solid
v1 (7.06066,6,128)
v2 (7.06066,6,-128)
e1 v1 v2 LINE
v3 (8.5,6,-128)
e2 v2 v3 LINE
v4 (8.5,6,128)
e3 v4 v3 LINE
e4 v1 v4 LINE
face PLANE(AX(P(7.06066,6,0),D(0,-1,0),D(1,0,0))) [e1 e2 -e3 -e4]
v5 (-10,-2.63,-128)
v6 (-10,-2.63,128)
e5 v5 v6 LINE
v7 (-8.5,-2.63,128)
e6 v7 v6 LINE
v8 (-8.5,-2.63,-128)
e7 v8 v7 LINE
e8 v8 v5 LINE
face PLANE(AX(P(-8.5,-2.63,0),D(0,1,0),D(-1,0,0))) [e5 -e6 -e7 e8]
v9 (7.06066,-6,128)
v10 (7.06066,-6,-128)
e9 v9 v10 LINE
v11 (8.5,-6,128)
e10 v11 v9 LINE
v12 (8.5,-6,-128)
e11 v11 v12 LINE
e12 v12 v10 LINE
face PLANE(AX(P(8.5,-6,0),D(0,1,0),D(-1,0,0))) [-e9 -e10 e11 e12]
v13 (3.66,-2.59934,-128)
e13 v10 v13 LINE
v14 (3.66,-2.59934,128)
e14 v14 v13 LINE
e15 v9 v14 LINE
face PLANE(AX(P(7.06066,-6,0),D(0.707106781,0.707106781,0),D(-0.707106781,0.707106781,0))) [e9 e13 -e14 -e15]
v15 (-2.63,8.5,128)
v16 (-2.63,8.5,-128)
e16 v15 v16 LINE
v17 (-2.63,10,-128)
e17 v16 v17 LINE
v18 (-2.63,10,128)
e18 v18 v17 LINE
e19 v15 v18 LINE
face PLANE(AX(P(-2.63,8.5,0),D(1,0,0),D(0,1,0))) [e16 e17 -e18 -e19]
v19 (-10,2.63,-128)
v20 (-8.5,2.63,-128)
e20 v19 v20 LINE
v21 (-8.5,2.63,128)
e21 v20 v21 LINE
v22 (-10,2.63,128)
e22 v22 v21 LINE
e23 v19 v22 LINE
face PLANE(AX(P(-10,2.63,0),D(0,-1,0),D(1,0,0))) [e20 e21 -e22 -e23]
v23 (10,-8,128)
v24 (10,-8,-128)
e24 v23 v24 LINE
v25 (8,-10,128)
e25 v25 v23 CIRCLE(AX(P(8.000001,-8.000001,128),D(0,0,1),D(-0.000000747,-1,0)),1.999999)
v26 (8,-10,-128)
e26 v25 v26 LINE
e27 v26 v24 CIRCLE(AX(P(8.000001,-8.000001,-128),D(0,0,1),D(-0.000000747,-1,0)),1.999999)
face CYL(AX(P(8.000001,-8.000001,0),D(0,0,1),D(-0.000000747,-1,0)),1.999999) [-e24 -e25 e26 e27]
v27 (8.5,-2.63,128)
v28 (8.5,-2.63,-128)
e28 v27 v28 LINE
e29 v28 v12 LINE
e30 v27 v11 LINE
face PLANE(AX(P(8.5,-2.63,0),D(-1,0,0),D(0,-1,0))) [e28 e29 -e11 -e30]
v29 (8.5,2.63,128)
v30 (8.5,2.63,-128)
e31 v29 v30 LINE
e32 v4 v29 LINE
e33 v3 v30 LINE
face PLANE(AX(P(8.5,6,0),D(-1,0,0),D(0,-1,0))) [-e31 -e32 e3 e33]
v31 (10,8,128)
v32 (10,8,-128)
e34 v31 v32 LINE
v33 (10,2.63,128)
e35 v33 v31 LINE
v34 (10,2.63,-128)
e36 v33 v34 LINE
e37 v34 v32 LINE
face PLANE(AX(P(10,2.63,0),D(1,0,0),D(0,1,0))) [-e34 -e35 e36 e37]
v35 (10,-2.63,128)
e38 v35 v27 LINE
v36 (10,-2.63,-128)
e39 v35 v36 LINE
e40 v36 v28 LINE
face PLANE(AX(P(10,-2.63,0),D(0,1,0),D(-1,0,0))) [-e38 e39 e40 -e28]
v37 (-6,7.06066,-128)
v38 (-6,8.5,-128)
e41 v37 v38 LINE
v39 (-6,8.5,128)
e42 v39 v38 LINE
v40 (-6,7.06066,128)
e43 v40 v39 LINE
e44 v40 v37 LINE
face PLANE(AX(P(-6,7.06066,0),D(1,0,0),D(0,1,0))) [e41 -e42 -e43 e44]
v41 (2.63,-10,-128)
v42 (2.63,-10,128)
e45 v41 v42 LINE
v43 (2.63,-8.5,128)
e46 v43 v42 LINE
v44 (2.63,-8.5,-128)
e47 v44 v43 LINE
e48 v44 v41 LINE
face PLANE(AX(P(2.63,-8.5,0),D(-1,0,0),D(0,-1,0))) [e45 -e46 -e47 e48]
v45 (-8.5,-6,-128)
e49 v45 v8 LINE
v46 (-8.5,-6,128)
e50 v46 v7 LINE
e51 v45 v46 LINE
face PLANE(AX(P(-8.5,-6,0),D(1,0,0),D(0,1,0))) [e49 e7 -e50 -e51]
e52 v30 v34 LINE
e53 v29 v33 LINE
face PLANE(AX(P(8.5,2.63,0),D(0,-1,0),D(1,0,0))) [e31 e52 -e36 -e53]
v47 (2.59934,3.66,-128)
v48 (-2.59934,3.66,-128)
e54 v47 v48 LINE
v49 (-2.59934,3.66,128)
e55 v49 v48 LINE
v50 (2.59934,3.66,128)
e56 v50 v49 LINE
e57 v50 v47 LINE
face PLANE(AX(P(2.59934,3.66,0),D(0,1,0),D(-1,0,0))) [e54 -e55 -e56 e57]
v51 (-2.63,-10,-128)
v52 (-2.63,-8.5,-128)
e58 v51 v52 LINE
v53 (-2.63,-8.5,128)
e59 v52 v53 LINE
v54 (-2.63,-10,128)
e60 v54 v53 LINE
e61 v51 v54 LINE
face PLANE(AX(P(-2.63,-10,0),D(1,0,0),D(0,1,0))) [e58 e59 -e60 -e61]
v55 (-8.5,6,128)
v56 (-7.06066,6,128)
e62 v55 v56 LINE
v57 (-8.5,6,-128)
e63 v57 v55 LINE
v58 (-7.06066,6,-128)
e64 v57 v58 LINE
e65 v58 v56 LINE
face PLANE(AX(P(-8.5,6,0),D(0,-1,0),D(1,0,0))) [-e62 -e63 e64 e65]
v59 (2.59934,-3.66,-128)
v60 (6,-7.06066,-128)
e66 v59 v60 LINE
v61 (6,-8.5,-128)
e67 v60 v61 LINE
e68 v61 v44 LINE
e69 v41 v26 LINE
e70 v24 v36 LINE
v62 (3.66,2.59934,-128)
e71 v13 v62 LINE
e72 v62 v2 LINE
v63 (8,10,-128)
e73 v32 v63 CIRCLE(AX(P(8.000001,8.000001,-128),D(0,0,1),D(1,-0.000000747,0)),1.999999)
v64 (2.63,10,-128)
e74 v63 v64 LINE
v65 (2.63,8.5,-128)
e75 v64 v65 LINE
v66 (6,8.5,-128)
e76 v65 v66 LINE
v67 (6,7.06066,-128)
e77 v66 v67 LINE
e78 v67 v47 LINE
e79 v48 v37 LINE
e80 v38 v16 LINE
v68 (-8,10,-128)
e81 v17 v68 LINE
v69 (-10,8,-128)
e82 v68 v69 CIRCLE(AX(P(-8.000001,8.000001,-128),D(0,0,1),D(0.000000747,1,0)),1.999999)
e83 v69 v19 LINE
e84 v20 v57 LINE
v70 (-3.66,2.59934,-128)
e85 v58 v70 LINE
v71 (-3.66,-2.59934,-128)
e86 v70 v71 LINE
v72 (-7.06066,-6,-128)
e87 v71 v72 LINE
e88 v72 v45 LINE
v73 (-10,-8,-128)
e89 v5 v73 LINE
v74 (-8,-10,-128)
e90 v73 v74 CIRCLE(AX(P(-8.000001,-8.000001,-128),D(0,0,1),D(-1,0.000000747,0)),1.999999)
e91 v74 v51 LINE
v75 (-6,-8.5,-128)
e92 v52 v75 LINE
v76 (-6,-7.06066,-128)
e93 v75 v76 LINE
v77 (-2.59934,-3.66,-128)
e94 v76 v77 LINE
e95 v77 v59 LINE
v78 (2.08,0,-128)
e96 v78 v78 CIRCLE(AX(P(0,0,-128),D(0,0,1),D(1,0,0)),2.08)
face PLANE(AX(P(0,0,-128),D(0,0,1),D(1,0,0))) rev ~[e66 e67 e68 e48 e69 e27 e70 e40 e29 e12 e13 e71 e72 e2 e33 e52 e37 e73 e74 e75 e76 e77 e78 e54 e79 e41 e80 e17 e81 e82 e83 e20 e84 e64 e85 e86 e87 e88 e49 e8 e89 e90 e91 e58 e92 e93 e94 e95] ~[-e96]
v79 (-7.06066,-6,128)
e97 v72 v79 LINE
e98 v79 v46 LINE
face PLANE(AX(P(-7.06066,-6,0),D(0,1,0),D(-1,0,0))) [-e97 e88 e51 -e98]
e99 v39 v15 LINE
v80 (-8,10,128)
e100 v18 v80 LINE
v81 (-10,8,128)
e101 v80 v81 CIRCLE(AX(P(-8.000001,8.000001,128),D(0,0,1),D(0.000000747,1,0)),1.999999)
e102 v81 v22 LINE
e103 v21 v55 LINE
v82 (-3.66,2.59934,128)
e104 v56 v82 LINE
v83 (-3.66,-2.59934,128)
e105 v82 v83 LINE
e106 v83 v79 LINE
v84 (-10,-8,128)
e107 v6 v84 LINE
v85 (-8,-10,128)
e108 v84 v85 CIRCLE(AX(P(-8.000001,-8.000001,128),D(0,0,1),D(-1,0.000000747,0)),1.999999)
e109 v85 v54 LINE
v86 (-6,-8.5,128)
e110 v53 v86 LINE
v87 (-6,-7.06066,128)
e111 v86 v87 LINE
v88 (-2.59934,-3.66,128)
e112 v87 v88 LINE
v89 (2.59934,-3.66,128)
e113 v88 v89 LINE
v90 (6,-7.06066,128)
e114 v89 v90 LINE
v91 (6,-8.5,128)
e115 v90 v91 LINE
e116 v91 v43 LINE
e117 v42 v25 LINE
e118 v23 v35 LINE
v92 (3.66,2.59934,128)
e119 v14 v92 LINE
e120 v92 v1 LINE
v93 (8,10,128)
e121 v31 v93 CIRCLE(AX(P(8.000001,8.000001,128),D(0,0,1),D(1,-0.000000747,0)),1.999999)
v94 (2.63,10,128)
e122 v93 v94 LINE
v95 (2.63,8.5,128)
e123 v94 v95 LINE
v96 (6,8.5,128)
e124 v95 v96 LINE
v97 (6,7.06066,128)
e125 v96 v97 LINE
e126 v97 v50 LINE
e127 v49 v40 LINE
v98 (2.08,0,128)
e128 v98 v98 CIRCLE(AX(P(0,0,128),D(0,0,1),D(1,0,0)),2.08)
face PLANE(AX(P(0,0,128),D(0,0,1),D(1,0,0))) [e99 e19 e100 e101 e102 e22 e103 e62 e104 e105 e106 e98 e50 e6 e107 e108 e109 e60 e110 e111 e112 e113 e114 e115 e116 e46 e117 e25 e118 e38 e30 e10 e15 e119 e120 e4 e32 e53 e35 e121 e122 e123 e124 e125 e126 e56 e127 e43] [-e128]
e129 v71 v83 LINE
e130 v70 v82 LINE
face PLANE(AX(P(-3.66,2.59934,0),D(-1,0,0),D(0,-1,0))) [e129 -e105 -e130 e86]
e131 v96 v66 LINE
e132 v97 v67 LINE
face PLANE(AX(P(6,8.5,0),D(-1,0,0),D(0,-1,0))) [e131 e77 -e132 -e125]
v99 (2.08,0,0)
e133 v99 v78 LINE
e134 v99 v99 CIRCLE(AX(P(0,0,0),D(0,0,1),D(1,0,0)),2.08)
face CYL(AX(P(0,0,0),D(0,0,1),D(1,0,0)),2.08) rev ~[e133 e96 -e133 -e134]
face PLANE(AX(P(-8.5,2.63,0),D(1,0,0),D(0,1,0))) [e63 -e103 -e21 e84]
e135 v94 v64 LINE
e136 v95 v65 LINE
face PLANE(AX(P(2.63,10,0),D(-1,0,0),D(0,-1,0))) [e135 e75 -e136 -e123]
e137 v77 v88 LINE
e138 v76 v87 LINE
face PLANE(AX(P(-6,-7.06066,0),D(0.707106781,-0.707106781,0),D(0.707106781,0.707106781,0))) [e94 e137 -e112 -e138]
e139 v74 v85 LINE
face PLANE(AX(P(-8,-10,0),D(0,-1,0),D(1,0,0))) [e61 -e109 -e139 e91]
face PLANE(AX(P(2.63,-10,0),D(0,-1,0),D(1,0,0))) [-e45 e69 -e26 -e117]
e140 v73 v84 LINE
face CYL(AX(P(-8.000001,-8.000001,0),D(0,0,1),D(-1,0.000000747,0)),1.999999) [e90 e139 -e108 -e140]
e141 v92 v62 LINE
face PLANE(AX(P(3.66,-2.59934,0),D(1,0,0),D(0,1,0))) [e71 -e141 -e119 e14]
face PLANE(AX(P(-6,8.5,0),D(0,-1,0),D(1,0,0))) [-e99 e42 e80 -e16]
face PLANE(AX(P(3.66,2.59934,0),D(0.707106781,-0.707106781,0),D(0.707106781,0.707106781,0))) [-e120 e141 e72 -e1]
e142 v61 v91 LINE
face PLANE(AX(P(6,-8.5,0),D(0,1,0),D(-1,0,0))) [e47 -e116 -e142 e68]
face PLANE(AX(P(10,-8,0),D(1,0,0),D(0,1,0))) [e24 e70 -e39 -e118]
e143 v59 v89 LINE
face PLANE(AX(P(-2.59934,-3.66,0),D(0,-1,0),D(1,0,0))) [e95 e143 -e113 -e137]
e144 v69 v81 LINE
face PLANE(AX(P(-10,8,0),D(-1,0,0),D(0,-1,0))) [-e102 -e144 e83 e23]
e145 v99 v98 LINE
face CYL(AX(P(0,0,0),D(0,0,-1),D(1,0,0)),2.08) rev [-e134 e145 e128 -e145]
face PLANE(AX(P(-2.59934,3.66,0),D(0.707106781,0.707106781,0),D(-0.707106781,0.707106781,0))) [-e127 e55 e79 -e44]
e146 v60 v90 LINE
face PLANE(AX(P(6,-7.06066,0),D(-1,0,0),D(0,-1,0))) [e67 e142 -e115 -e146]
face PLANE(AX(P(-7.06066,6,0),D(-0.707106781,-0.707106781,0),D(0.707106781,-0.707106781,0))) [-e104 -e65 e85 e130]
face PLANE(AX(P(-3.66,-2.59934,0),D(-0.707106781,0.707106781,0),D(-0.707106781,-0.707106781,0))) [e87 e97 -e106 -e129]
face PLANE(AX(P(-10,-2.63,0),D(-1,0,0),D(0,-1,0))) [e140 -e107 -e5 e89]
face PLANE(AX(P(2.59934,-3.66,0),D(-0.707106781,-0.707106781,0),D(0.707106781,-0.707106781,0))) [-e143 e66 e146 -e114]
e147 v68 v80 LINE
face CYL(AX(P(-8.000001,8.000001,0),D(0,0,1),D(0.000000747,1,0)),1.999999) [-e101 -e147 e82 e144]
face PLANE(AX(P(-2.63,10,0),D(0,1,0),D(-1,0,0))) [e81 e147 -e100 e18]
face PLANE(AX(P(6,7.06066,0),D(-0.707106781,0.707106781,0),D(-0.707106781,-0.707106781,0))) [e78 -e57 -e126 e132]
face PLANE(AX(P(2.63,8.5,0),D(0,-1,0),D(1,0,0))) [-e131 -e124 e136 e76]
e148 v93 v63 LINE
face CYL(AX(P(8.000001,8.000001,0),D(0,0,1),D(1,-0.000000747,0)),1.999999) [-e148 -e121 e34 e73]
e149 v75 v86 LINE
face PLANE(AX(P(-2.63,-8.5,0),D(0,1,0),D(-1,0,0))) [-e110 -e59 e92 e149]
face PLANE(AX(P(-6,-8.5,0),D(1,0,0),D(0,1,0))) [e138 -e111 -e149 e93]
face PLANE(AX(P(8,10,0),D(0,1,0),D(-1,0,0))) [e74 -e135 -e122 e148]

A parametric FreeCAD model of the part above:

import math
import FreeCAD as App
import Part
import Sketcher
Q = App.Units.Quantity

doc = App.newDocument("Part")
body = doc.addObject("PartDesign::Body", "Body")

sketch1 = doc.addObject("Sketcher::SketchObject", "Sketch")
body.addObject(sketch1)
sketch1.AttachmentSupport = (doc.XY_Plane, [""])
sketch1.MapMode = "FlatFace"
sketch1.addGeometry([
    Part.LineSegment(App.Vector(-2.6, 10, 0), App.Vector(-8, 10, 0)),
    Part.ArcOfCircle(Part.Circle(App.Vector(-8, 8, 0), App.Vector(0, 0, 1), 2), math.radians(90), math.radians(180)),
    Part.LineSegment(App.Vector(-10, 8, 0), App.Vector(-10, 2.6, 0)),
    Part.LineSegment(App.Vector(-10, 2.6, 0), App.Vector(-8.5, 2.6, 0)),
    Part.LineSegment(App.Vector(-8.5, 2.6, 0), App.Vector(-8.5, 6, 0)),
    Part.LineSegment(App.Vector(-8.5, 6, 0), App.Vector(-7.1, 6, 0)),
    Part.LineSegment(App.Vector(-7.1, 6, 0), App.Vector(-3.7, 2.6, 0)),
    Part.LineSegment(App.Vector(-3.7, 2.6, 0), App.Vector(-3.7, -2.6, 0)),
    Part.LineSegment(App.Vector(-3.7, -2.6, 0), App.Vector(-7.1, -6, 0)),
    Part.LineSegment(App.Vector(-7.1, -6, 0), App.Vector(-8.5, -6, 0)),
    Part.LineSegment(App.Vector(-8.5, -6, 0), App.Vector(-8.5, -2.6, 0)),
    Part.LineSegment(App.Vector(-8.5, -2.6, 0), App.Vector(-10, -2.6, 0)),
    Part.LineSegment(App.Vector(-10, -2.6, 0), App.Vector(-10, -8, 0)),
    Part.ArcOfCircle(Part.Circle(App.Vector(-8, -8, 0), App.Vector(0, 0, 1), 2), math.radians(180), math.radians(270)),
    Part.LineSegment(App.Vector(-8, -10, 0), App.Vector(-2.6, -10, 0)),
    Part.LineSegment(App.Vector(-2.6, -10, 0), App.Vector(-2.6, -8.5, 0)),
    Part.LineSegment(App.Vector(-2.6, -8.5, 0), App.Vector(-6, -8.5, 0)),
    Part.LineSegment(App.Vector(-6, -8.5, 0), App.Vector(-6, -7.1, 0)),
    Part.LineSegment(App.Vector(-6, -7.1, 0), App.Vector(-2.6, -3.7, 0)),
    Part.LineSegment(App.Vector(-2.6, -3.7, 0), App.Vector(2.6, -3.7, 0)),
    Part.LineSegment(App.Vector(2.6, -3.7, 0), App.Vector(6, -7.1, 0)),
    Part.LineSegment(App.Vector(6, -7.1, 0), App.Vector(6, -8.5, 0)),
    Part.LineSegment(App.Vector(6, -8.5, 0), App.Vector(2.6, -8.5, 0)),
    Part.LineSegment(App.Vector(2.6, -8.5, 0), App.Vector(2.6, -10, 0)),
    Part.LineSegment(App.Vector(2.6, -10, 0), App.Vector(8, -10, 0)),
    Part.ArcOfCircle(Part.Circle(App.Vector(8, -8, 0), App.Vector(0, 0, 1), 2), math.radians(-90), math.radians(0)),
    Part.LineSegment(App.Vector(10, -8, 0), App.Vector(10, -2.6, 0)),
    Part.LineSegment(App.Vector(10, -2.6, 0), App.Vector(8.5, -2.6, 0)),
    Part.LineSegment(App.Vector(8.5, -2.6, 0), App.Vector(8.5, -6, 0)),
    Part.LineSegment(App.Vector(8.5, -6, 0), App.Vector(7.1, -6, 0)),
    Part.LineSegment(App.Vector(7.1, -6, 0), App.Vector(3.7, -2.6, 0)),
    Part.LineSegment(App.Vector(3.7, -2.6, 0), App.Vector(3.7, 2.6, 0)),
    Part.LineSegment(App.Vector(3.7, 2.6, 0), App.Vector(7.1, 6, 0)),
    Part.LineSegment(App.Vector(7.1, 6, 0), App.Vector(8.5, 6, 0)),
    Part.LineSegment(App.Vector(8.5, 6, 0), App.Vector(8.5, 2.6, 0)),
    Part.LineSegment(App.Vector(8.5, 2.6, 0), App.Vector(10, 2.6, 0)),
    Part.LineSegment(App.Vector(10, 2.6, 0), App.Vector(10, 8, 0)),
    Part.ArcOfCircle(Part.Circle(App.Vector(8, 8, 0), App.Vector(0, 0, 1), 2), math.radians(0), math.radians(90)),
    Part.LineSegment(App.Vector(8, 10, 0), App.Vector(2.6, 10, 0)),
    Part.LineSegment(App.Vector(2.6, 10, 0), App.Vector(2.6, 8.5, 0)),
    Part.LineSegment(App.Vector(2.6, 8.5, 0), App.Vector(6, 8.5, 0)),
    Part.LineSegment(App.Vector(6, 8.5, 0), App.Vector(6, 7.1, 0)),
    Part.LineSegment(App.Vector(6, 7.1, 0), App.Vector(2.6, 3.7, 0)),
    Part.LineSegment(App.Vector(2.6, 3.7, 0), App.Vector(-2.6, 3.7, 0)),
    Part.LineSegment(App.Vector(-2.6, 3.7, 0), App.Vector(-6, 7.1, 0)),
    Part.LineSegment(App.Vector(-6, 7.1, 0), App.Vector(-6, 8.5, 0)),
    Part.LineSegment(App.Vector(-6, 8.5, 0), App.Vector(-2.6, 8.5, 0)),
    Part.LineSegment(App.Vector(-2.6, 8.5, 0), App.Vector(-2.6, 10, 0)),
    Part.Circle(App.Vector(0, 0, 0), App.Vector(0, 0, 1), 2.1),
], False)
sketch1.addConstraint([
    Sketcher.Constraint("Tangent", 0, 2, 1, 1),
    Sketcher.Constraint("Tangent", 1, 2, 2, 1),
    Sketcher.Constraint("Coincident", 2, 2, 3, 1),
    Sketcher.Constraint("Coincident", 3, 2, 4, 1),
    Sketcher.Constraint("Coincident", 4, 2, 5, 1),
    Sketcher.Constraint("Coincident", 5, 2, 6, 1),
    Sketcher.Constraint("Coincident", 6, 2, 7, 1),
    Sketcher.Constraint("Coincident", 7, 2, 8, 1),
    Sketcher.Constraint("Coincident", 8, 2, 9, 1),
    Sketcher.Constraint("Coincident", 9, 2, 10, 1),
    Sketcher.Constraint("Coincident", 10, 2, 11, 1),
    Sketcher.Constraint("Coincident", 11, 2, 12, 1),
    Sketcher.Constraint("Tangent", 12, 2, 13, 1),
    Sketcher.Constraint("Tangent", 13, 2, 14, 1),
    Sketcher.Constraint("Coincident", 14, 2, 15, 1),
    Sketcher.Constraint("Coincident", 15, 2, 16, 1),
    Sketcher.Constraint("Coincident", 16, 2, 17, 1),
    Sketcher.Constraint("Coincident", 17, 2, 18, 1),
    Sketcher.Constraint("Coincident", 18, 2, 19, 1),
    Sketcher.Constraint("Coincident", 19, 2, 20, 1),
    Sketcher.Constraint("Coincident", 20, 2, 21, 1),
    Sketcher.Constraint("Coincident", 21, 2, 22, 1),
    Sketcher.Constraint("Coincident", 22, 2, 23, 1),
    Sketcher.Constraint("Coincident", 23, 2, 24, 1),
    Sketcher.Constraint("Tangent", 24, 2, 25, 1),
    Sketcher.Constraint("Tangent", 25, 2, 26, 1),
    Sketcher.Constraint("Coincident", 26, 2, 27, 1),
    Sketcher.Constraint("Coincident", 27, 2, 28, 1),
    Sketcher.Constraint("Coincident", 28, 2, 29, 1),
    Sketcher.Constraint("Coincident", 29, 2, 30, 1),
    Sketcher.Constraint("Coincident", 30, 2, 31, 1),
    Sketcher.Constraint("Coincident", 31, 2, 32, 1),
    Sketcher.Constraint("Coincident", 32, 2, 33, 1),
    Sketcher.Constraint("Coincident", 33, 2, 34, 1),
    Sketcher.Constraint("Coincident", 34, 2, 35, 1),
    Sketcher.Constraint("Coincident", 35, 2, 36, 1),
    Sketcher.Constraint("Tangent", 36, 2, 37, 1),
    Sketcher.Constraint("Tangent", 37, 2, 38, 1),
    Sketcher.Constraint("Coincident", 38, 2, 39, 1),
    Sketcher.Constraint("Coincident", 39, 2, 40, 1),
    Sketcher.Constraint("Coincident", 40, 2, 41, 1),
    Sketcher.Constraint("Coincident", 41, 2, 42, 1),
    Sketcher.Constraint("Coincident", 42, 2, 43, 1),
    Sketcher.Constraint("Coincident", 43, 2, 44, 1),
    Sketcher.Constraint("Coincident", 44, 2, 45, 1),
    Sketcher.Constraint("Coincident", 45, 2, 46, 1),
    Sketcher.Constraint("Coincident", 46, 2, 47, 1),
    Sketcher.Constraint("Coincident", 47, 2, 0, 1),
    Sketcher.Constraint("Horizontal", 0),
    Sketcher.Constraint("Vertical", 2),
    Sketcher.Constraint("Horizontal", 3),
    Sketcher.Constraint("Vertical", 4),
    Sketcher.Constraint("Horizontal", 5),
    Sketcher.Constraint("Vertical", 7),
    Sketcher.Constraint("Horizontal", 9),
    Sketcher.Constraint("Vertical", 10),
    Sketcher.Constraint("Horizontal", 11),
    Sketcher.Constraint("Vertical", 12),
    Sketcher.Constraint("Horizontal", 14),
    Sketcher.Constraint("Vertical", 15),
    Sketcher.Constraint("Horizontal", 16),
    Sketcher.Constraint("Vertical", 17),
    Sketcher.Constraint("Horizontal", 19),
    Sketcher.Constraint("Vertical", 21),
    Sketcher.Constraint("Horizontal", 22),
    Sketcher.Constraint("Vertical", 23),
    Sketcher.Constraint("Horizontal", 24),
    Sketcher.Constraint("Vertical", 26),
    Sketcher.Constraint("Horizontal", 27),
    Sketcher.Constraint("Vertical", 28),
    Sketcher.Constraint("Horizontal", 29),
    Sketcher.Constraint("Vertical", 31),
    Sketcher.Constraint("Horizontal", 33),
    Sketcher.Constraint("Vertical", 34),
    Sketcher.Constraint("Horizontal", 35),
    Sketcher.Constraint("Vertical", 36),
    Sketcher.Constraint("Horizontal", 38),
    Sketcher.Constraint("Vertical", 39),
    Sketcher.Constraint("Horizontal", 40),
    Sketcher.Constraint("Vertical", 41),
    Sketcher.Constraint("Horizontal", 43),
    Sketcher.Constraint("Vertical", 45),
    Sketcher.Constraint("Horizontal", 46),
    Sketcher.Constraint("Vertical", 47),
    Sketcher.Constraint("Coincident", 48, 3, -1, 1),
    Sketcher.Constraint("Equal", 1, 13),
    Sketcher.Constraint("Equal", 13, 25),
    Sketcher.Constraint("Equal", 25, 37),
    Sketcher.Constraint("Symmetric", 1, 3, 25, 3, -1, 1),
    Sketcher.Constraint("Symmetric", 13, 3, 37, 3, -1, 1),
    Sketcher.Constraint("Symmetric", 3, 2, 27, 2, -1, 1),
    Sketcher.Constraint("Symmetric", 5, 2, 29, 2, -1, 1),
    Sketcher.Constraint("Symmetric", 6, 2, 30, 2, -1, 1),
    Sketcher.Constraint("Symmetric", 8, 2, 32, 2, -1, 1),
    Sketcher.Constraint("Symmetric", 10, 2, 34, 2, -1, 1),
    Sketcher.Constraint("Symmetric", 15, 2, 39, 2, -1, 1),
    Sketcher.Constraint("Symmetric", 17, 2, 41, 2, -1, 1),
    Sketcher.Constraint("Symmetric", 18, 2, 42, 2, -1, 1),
    Sketcher.Constraint("Symmetric", 20, 2, 44, 2, -1, 1),
    Sketcher.Constraint("Symmetric", 22, 2, 46, 2, -1, 1),
    Sketcher.Constraint("Symmetric", 13, 3, 25, 3, -2),
    Sketcher.Constraint("Symmetric", 17, 2, 20, 2, -2),
    Sketcher.Constraint("Symmetric", 15, 2, 22, 2, -2),
    Sketcher.Constraint("Symmetric", 10, 2, 27, 2, -2),
    Sketcher.Constraint("Symmetric", 8, 2, 29, 2, -2),
    Sketcher.Constraint("Perpendicular", 6, 8),
    Sketcher.Constraint("Parallel", 8, 18),
    Sketcher.Constraint("Perpendicular", 18, 20),
    Sketcher.Constraint("Perpendicular", 30, 32),
    Sketcher.Constraint("Perpendicular", 42, 44),
    Sketcher.Constraint("Horizontal", 7, 2, 30, 2),
    Sketcher.Constraint("Equal", 38, 2),
    Sketcher.Constraint("Equal", 46, 4),
    Sketcher.Constraint("Equal", 43, 7),
    Sketcher.Constraint("Equal", 35, 15),
    Sketcher.Constraint("Equal", 33, 17),
    Sketcher.Constraint("Equal", 8, 18),
    Sketcher.Constraint("Radius", 1, Q("1.999999 mm")),
    Sketcher.Constraint("Diameter", 48, Q("4.16 mm")),
    Sketcher.Constraint("DistanceX", 3, 1, 3, 2, Q("1.5 mm")),
    Sketcher.Constraint("DistanceX", 1, 3, -1, 1, Q("8.000001 mm")),
    Sketcher.Constraint("DistanceY", -1, 1, 4, 2, Q("6 mm")),
    Sketcher.Constraint("DistanceX", 0, 2, 0, 1, Q("5.37 mm")),
    Sketcher.Constraint("DistanceX", 6, 2, -1, 1, Q("3.66 mm")),
    Sketcher.Constraint("DistanceX", 5, 1, 5, 2, Q("1.43934 mm")),
])
pad1 = doc.addObject("PartDesign::Pad", "Pad")
body.addObject(pad1)
pad1.Profile = sketch1
pad1.Type = "TwoLengths"
pad1.Length = 128
pad1.Length2 = 128

doc.recompute()
